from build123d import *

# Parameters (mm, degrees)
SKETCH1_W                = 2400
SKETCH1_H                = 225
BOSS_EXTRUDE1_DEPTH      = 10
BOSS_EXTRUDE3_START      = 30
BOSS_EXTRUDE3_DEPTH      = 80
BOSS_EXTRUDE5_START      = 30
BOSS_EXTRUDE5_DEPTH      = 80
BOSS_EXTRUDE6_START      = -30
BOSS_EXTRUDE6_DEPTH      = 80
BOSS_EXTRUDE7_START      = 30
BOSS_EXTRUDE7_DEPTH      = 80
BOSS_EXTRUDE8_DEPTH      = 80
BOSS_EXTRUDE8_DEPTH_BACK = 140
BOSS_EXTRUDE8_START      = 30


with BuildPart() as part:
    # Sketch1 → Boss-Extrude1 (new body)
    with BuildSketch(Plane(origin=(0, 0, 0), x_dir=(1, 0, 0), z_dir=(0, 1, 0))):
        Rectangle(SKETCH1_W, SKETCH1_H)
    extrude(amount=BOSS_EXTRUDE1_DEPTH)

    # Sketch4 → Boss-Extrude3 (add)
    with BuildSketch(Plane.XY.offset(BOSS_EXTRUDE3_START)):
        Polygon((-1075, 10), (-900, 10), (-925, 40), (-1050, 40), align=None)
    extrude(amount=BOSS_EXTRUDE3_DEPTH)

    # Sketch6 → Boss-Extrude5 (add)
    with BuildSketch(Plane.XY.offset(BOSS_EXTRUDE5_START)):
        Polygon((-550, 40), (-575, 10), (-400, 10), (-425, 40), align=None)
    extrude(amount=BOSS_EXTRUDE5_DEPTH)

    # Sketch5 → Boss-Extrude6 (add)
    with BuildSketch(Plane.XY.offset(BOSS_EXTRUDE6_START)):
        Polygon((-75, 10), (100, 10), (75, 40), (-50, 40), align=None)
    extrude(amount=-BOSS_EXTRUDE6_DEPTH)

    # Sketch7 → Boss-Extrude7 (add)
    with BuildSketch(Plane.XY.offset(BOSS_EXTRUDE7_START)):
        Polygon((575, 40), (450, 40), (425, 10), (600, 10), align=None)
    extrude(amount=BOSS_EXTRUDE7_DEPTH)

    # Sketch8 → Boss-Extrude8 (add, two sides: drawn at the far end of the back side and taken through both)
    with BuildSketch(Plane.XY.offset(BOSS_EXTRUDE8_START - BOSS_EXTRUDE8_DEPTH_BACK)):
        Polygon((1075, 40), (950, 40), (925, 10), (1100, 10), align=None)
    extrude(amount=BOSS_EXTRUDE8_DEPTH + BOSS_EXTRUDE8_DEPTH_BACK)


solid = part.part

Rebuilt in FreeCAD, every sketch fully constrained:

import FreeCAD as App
import Part
import Sketcher


def add_polygon(sketch, points):
    """Adds a closed chain of lines whose ends are joined by coincident constraints."""
    first, n = sketch.GeometryCount, len(points)
    for a, b in zip(points, points[1:] + points[:1]):
        sketch.addGeometry(Part.LineSegment(App.Vector(*a, 0), App.Vector(*b, 0)), False)
    for i in range(n):
        sketch.addConstraint(Sketcher.Constraint("Coincident", first + i, 2, first + (i + 1) % n, 1))

doc = App.newDocument("Part")
body = doc.addObject("PartDesign::Body", "Body")

# Sketch on XZ plane
sketch1 = body.newObject("Sketcher::SketchObject", "Sketch")
sketch1.AttachmentSupport = (doc.getObject("XZ_Plane"), [""])
sketch1.MapMode = "FlatFace"
add_polygon(sketch1, [(-1200, -112), (-1200, 112), (1200, 112), (1200, -112)])  # lines 0-3
sketch1.addConstraint(Sketcher.Constraint("Vertical", 0))
sketch1.addConstraint(Sketcher.Constraint("Horizontal", 1))
sketch1.addConstraint(Sketcher.Constraint("Vertical", 2))
sketch1.addConstraint(Sketcher.Constraint("Horizontal", 3))
sketch1.addConstraint(Sketcher.Constraint("Symmetric", 0, 2, 2, 2, -1, 1))
sketch1.addConstraint(Sketcher.Constraint("DistanceX", 1, 1, 1, 2, 2400.0))
sketch1.addConstraint(Sketcher.Constraint("DistanceY", 0, 1, 0, 2, 225.0))
pad1 = body.newObject("PartDesign::Pad", "Pad")
pad1.Profile = sketch1
pad1.Length = 10
pad1.Reversed = True

# Sketch on XY plane
sketch2 = body.newObject("Sketcher::SketchObject", "Sketch001")
sketch2.AttachmentSupport = (doc.getObject("XY_Plane"), [""])
sketch2.MapMode = "FlatFace"
sketch2.AttachmentOffset = App.Placement(App.Vector(0, 0, 30), App.Rotation())
add_polygon(sketch2, [(-1075, 10), (-900, 10), (-925, 40), (-1050, 40)])  # lines 0-3
sketch2.addConstraint(Sketcher.Constraint("Horizontal", 0))
sketch2.addConstraint(Sketcher.Constraint("Horizontal", 2))
sketch2.addConstraint(Sketcher.Constraint("Equal", 1, 3))
sketch2.addConstraint(Sketcher.Constraint("DistanceX", 0, 1, 0, 2, 175.0))
sketch2.addConstraint(Sketcher.Constraint("DistanceX", 2, 2, 2, 1, 125.0))
sketch2.addConstraint(Sketcher.Constraint("DistanceX", 0, 2, -1, 1, 900.0))
sketch2.addConstraint(Sketcher.Constraint("DistanceY", -1, 1, 0, 2, 10.0))
sketch2.addConstraint(Sketcher.Constraint("DistanceY", -1, 1, 1, 2, 40.0))
pad2 = body.newObject("PartDesign::Pad", "Pad001")
pad2.Profile = sketch2
pad2.Length = 80

# Sketch on XY plane
sketch3 = body.newObject("Sketcher::SketchObject", "Sketch002")
sketch3.AttachmentSupport = (doc.getObject("XY_Plane"), [""])
sketch3.MapMode = "FlatFace"
sketch3.AttachmentOffset = App.Placement(App.Vector(0, 0, 30), App.Rotation())
add_polygon(sketch3, [(-550, 40), (-575, 10), (-400, 10), (-425, 40)])  # lines 0-3
sketch3.addConstraint(Sketcher.Constraint("Horizontal", 1))
sketch3.addConstraint(Sketcher.Constraint("Horizontal", 3))
sketch3.addConstraint(Sketcher.Constraint("Equal", 0, 2))
sketch3.addConstraint(Sketcher.Constraint("DistanceX", 1, 1, 1, 2, 175.0))
sketch3.addConstraint(Sketcher.Constraint("DistanceX", 3, 2, 3, 1, 125.0))
sketch3.addConstraint(Sketcher.Constraint("DistanceX", 0, 2, -1, 1, 575.0))
sketch3.addConstraint(Sketcher.Constraint("DistanceY", -1, 1, 0, 2, 10.0))
sketch3.addConstraint(Sketcher.Constraint("DistanceY", -1, 1, 2, 2, 40.0))
pad3 = body.newObject("PartDesign::Pad", "Pad002")
pad3.Profile = sketch3
pad3.Length = 80

# Sketch on XY plane
sketch4 = body.newObject("Sketcher::SketchObject", "Sketch003")
sketch4.AttachmentSupport = (doc.getObject("XY_Plane"), [""])
sketch4.MapMode = "FlatFace"
sketch4.AttachmentOffset = App.Placement(App.Vector(0, 0, -30), App.Rotation())
add_polygon(sketch4, [(-75, 10), (100, 10), (75, 40), (-50, 40)])  # lines 0-3
sketch4.addConstraint(Sketcher.Constraint("Horizontal", 0))
sketch4.addConstraint(Sketcher.Constraint("Horizontal", 2))
sketch4.addConstraint(Sketcher.Constraint("Equal", 1, 3))
sketch4.addConstraint(Sketcher.Constraint("DistanceX", 0, 1, 0, 2, 175.0))
sketch4.addConstraint(Sketcher.Constraint("DistanceX", 2, 2, 2, 1, 125.0))
sketch4.addConstraint(Sketcher.Constraint("DistanceX", -1, 1, 0, 2, 100.0))
sketch4.addConstraint(Sketcher.Constraint("DistanceY", -1, 1, 0, 2, 10.0))
sketch4.addConstraint(Sketcher.Constraint("DistanceY", -1, 1, 1, 2, 40.0))
pad4 = body.newObject("PartDesign::Pad", "Pad003")
pad4.Profile = sketch4
pad4.Length = 80
pad4.Reversed = True

# Sketch on XY plane
sketch5 = body.newObject("Sketcher::SketchObject", "Sketch004")
sketch5.AttachmentSupport = (doc.getObject("XY_Plane"), [""])
sketch5.MapMode = "FlatFace"
sketch5.AttachmentOffset = App.Placement(App.Vector(0, 0, 30), App.Rotation())
add_polygon(sketch5, [(575, 40), (450, 40), (425, 10), (600, 10)])  # lines 0-3
sketch5.addConstraint(Sketcher.Constraint("Horizontal", 0))
sketch5.addConstraint(Sketcher.Constraint("Horizontal", 2))
sketch5.addConstraint(Sketcher.Constraint("Equal", 1, 3))
sketch5.addConstraint(Sketcher.Constraint("DistanceX", 0, 2, 0, 1, 125.0))
sketch5.addConstraint(Sketcher.Constraint("DistanceX", 2, 1, 2, 2, 175.0))
sketch5.addConstraint(Sketcher.Constraint("DistanceX", -1, 1, 0, 2, 450.0))
sketch5.addConstraint(Sketcher.Constraint("DistanceY", -1, 1, 0, 2, 40.0))
sketch5.addConstraint(Sketcher.Constraint("DistanceY", -1, 1, 1, 2, 10.0))
pad5 = body.newObject("PartDesign::Pad", "Pad004")
pad5.Profile = sketch5
pad5.Length = 80

# Sketch on XY plane
sketch6 = body.newObject("Sketcher::SketchObject", "Sketch005")
sketch6.AttachmentSupport = (doc.getObject("XY_Plane"), [""])
sketch6.MapMode = "FlatFace"
sketch6.AttachmentOffset = App.Placement(App.Vector(0, 0, 30), App.Rotation())
add_polygon(sketch6, [(1075, 40), (950, 40), (925, 10), (1100, 10)])  # lines 0-3
sketch6.addConstraint(Sketcher.Constraint("Horizontal", 0))
sketch6.addConstraint(Sketcher.Constraint("Horizontal", 2))
sketch6.addConstraint(Sketcher.Constraint("Equal", 1, 3))
sketch6.addConstraint(Sketcher.Constraint("DistanceX", 0, 2, 0, 1, 125.0))
sketch6.addConstraint(Sketcher.Constraint("DistanceX", 2, 1, 2, 2, 175.0))
sketch6.addConstraint(Sketcher.Constraint("DistanceX", -1, 1, 0, 2, 950.0))
sketch6.addConstraint(Sketcher.Constraint("DistanceY", -1, 1, 0, 2, 40.0))
sketch6.addConstraint(Sketcher.Constraint("DistanceY", -1, 1, 1, 2, 10.0))
pad6 = body.newObject("PartDesign::Pad", "Pad005")
pad6.Profile = sketch6
pad6.Type = "TwoLengths"
pad6.Length = 80
pad6.Length2 = 140

doc.recompute()
